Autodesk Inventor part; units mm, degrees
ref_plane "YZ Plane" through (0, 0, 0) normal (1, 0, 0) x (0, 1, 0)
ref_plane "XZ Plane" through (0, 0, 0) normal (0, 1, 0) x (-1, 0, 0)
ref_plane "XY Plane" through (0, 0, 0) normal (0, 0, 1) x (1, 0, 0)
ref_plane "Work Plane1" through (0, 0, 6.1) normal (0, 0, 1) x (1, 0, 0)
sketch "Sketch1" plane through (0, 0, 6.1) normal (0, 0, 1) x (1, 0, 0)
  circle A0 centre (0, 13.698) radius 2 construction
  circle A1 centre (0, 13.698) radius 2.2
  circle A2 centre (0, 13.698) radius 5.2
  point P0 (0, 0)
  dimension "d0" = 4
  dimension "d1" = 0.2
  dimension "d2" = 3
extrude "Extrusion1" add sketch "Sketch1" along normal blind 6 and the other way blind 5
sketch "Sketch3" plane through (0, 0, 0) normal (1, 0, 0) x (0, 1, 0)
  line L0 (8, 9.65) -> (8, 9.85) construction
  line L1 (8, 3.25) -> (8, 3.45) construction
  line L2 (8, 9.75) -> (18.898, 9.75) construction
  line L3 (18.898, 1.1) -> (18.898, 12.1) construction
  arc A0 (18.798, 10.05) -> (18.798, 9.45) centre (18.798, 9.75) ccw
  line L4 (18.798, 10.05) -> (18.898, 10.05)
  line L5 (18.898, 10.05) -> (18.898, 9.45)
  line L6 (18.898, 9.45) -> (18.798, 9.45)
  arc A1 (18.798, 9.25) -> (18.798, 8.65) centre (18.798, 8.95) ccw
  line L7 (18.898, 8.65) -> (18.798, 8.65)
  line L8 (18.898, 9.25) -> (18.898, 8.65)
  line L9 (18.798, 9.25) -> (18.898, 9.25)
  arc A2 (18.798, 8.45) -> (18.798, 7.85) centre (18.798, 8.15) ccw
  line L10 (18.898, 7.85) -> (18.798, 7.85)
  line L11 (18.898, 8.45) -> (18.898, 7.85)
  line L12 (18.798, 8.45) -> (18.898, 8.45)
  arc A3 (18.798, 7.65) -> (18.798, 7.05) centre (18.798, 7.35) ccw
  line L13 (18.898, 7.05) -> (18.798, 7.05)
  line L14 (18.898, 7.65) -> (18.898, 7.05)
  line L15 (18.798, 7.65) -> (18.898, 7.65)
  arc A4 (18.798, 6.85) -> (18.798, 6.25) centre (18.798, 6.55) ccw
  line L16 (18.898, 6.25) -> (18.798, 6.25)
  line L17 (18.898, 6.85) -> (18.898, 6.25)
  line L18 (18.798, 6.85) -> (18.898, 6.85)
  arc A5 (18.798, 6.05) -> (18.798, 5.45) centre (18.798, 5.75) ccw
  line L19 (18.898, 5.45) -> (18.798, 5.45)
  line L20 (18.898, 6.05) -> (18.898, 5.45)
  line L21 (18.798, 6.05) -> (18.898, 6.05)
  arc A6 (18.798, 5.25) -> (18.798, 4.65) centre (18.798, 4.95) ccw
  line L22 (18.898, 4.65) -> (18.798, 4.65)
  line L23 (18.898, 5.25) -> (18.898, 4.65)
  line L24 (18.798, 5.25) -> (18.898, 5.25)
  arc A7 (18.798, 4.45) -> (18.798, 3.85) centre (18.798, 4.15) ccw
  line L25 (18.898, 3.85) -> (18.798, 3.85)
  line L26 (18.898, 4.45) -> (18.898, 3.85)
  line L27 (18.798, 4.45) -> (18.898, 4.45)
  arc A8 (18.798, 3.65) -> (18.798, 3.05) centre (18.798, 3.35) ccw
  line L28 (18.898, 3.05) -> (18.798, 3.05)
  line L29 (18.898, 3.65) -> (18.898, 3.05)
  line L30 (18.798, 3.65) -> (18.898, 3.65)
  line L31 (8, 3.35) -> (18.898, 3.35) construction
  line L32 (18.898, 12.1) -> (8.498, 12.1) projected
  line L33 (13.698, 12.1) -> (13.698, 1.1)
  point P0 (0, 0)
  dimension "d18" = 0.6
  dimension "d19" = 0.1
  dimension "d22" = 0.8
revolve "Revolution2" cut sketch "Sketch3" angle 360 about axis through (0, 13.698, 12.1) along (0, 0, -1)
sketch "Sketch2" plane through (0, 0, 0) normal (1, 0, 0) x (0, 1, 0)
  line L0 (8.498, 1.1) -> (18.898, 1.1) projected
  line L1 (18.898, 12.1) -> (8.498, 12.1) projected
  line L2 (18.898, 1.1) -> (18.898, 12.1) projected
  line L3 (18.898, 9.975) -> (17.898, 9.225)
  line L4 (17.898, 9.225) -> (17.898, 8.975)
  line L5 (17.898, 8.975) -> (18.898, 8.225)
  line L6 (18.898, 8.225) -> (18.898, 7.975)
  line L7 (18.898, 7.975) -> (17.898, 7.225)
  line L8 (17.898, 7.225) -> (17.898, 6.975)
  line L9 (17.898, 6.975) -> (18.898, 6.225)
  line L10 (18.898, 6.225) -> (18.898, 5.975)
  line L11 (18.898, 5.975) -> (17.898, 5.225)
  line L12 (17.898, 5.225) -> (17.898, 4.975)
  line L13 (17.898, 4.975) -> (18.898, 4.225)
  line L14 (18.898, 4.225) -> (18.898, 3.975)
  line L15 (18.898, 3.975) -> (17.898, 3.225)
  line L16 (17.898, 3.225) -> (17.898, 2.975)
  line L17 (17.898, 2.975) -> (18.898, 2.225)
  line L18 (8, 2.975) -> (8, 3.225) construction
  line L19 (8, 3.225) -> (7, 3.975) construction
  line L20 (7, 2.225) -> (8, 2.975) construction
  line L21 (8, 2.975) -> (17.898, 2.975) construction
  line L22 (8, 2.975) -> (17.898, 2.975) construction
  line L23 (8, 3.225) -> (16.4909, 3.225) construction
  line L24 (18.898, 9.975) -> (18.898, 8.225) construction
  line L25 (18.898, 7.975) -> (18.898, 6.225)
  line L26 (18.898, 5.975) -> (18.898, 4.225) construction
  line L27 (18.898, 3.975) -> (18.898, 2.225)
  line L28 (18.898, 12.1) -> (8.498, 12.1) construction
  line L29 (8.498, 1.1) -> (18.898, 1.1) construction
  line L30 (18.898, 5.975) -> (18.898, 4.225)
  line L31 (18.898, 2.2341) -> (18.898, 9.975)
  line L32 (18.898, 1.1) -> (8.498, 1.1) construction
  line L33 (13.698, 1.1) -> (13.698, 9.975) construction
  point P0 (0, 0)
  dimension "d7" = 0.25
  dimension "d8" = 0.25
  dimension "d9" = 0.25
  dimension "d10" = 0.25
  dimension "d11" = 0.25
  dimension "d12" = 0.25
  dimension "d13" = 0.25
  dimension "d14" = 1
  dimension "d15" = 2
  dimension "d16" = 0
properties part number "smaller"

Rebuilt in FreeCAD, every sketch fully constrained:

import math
import FreeCAD as App
import Part
import Sketcher

doc = App.newDocument("Part")
body = doc.addObject("PartDesign::Body", "Body")

# Sketch on XY plane
sketch1 = body.newObject("Sketcher::SketchObject", "Sketch")
sketch1.AttachmentSupport = (doc.getObject("XY_Plane"), [""])
sketch1.MapMode = "FlatFace"
sketch1.AttachmentOffset = App.Placement(App.Vector(0, 0, 6.1), App.Rotation())
sketch1.addGeometry(Part.Circle(App.Vector(0, 13.698, 0), App.Vector(0, 0, 1), 5.2), False)
sketch1.addGeometry(Part.Circle(App.Vector(0, 13.698, 0), App.Vector(0, 0, 1), 2.2), False)
sketch1.addConstraint(Sketcher.Constraint("Coincident", 1, 3, 0, 3))
sketch1.addConstraint(Sketcher.Constraint("PointOnObject", 0, 3, -2))
sketch1.addConstraint(Sketcher.Constraint("Diameter", 0, 10.4))
sketch1.addConstraint(Sketcher.Constraint("Diameter", 1, 4.4))
sketch1.addConstraint(Sketcher.Constraint("DistanceY", -1, 1, 0, 3, 13.698))
pad1 = body.newObject("PartDesign::Pad", "Pad")
pad1.Profile = sketch1
pad1.Type = "TwoLengths"
pad1.Length = 6
pad1.Length2 = 5

# Sketch on YZ plane
sketch2 = body.newObject("Sketcher::SketchObject", "Sketch001")
sketch2.AttachmentSupport = (doc.getObject("YZ_Plane"), [""])
sketch2.MapMode = "FlatFace"
sketch2.addGeometry(Part.LineSegment(App.Vector(18.898, 10.05, 0), App.Vector(18.798, 10.05, 0)), False)
sketch2.addGeometry(Part.ArcOfCircle(Part.Circle(App.Vector(18.798, 9.75, 0), App.Vector(0, 0, 1), 0.3), math.radians(90), math.radians(270)), False)
sketch2.addGeometry(Part.LineSegment(App.Vector(18.798, 9.45, 0), App.Vector(18.898, 9.45, 0)), False)
sketch2.addGeometry(Part.LineSegment(App.Vector(18.898, 9.45, 0), App.Vector(18.898, 10.05, 0)), False)
sketch2.addGeometry(Part.LineSegment(App.Vector(18.898, 9.25, 0), App.Vector(18.798, 9.25, 0)), False)
sketch2.addGeometry(Part.ArcOfCircle(Part.Circle(App.Vector(18.798, 8.95, 0), App.Vector(0, 0, 1), 0.3), math.radians(90), math.radians(270)), False)
sketch2.addGeometry(Part.LineSegment(App.Vector(18.798, 8.65, 0), App.Vector(18.898, 8.65, 0)), False)
sketch2.addGeometry(Part.LineSegment(App.Vector(18.898, 8.65, 0), App.Vector(18.898, 9.25, 0)), False)
sketch2.addGeometry(Part.LineSegment(App.Vector(18.898, 8.45, 0), App.Vector(18.798, 8.45, 0)), False)
sketch2.addGeometry(Part.ArcOfCircle(Part.Circle(App.Vector(18.798, 8.15, 0), App.Vector(0, 0, 1), 0.3), math.radians(90), math.radians(270)), False)
sketch2.addGeometry(Part.LineSegment(App.Vector(18.798, 7.85, 0), App.Vector(18.898, 7.85, 0)), False)
sketch2.addGeometry(Part.LineSegment(App.Vector(18.898, 7.85, 0), App.Vector(18.898, 8.45, 0)), False)
sketch2.addGeometry(Part.LineSegment(App.Vector(18.898, 7.65, 0), App.Vector(18.798, 7.65, 0)), False)
sketch2.addGeometry(Part.ArcOfCircle(Part.Circle(App.Vector(18.798, 7.35, 0), App.Vector(0, 0, 1), 0.3), math.radians(90), math.radians(270)), False)
sketch2.addGeometry(Part.LineSegment(App.Vector(18.798, 7.05, 0), App.Vector(18.898, 7.05, 0)), False)
sketch2.addGeometry(Part.LineSegment(App.Vector(18.898, 7.05, 0), App.Vector(18.898, 7.65, 0)), False)
sketch2.addGeometry(Part.LineSegment(App.Vector(18.898, 6.85, 0), App.Vector(18.798, 6.85, 0)), False)
sketch2.addGeometry(Part.ArcOfCircle(Part.Circle(App.Vector(18.798, 6.55, 0), App.Vector(0, 0, 1), 0.3), math.radians(90), math.radians(270)), False)
sketch2.addGeometry(Part.LineSegment(App.Vector(18.798, 6.25, 0), App.Vector(18.898, 6.25, 0)), False)
sketch2.addGeometry(Part.LineSegment(App.Vector(18.898, 6.25, 0), App.Vector(18.898, 6.85, 0)), False)
sketch2.addGeometry(Part.LineSegment(App.Vector(18.898, 6.05, 0), App.Vector(18.798, 6.05, 0)), False)
sketch2.addGeometry(Part.ArcOfCircle(Part.Circle(App.Vector(18.798, 5.75, 0), App.Vector(0, 0, 1), 0.3), math.radians(90), math.radians(270)), False)
sketch2.addGeometry(Part.LineSegment(App.Vector(18.798, 5.45, 0), App.Vector(18.898, 5.45, 0)), False)
sketch2.addGeometry(Part.LineSegment(App.Vector(18.898, 5.45, 0), App.Vector(18.898, 6.05, 0)), False)
sketch2.addGeometry(Part.LineSegment(App.Vector(18.898, 5.25, 0), App.Vector(18.798, 5.25, 0)), False)
sketch2.addGeometry(Part.ArcOfCircle(Part.Circle(App.Vector(18.798, 4.95, 0), App.Vector(0, 0, 1), 0.3), math.radians(90), math.radians(270)), False)
sketch2.addGeometry(Part.LineSegment(App.Vector(18.798, 4.65, 0), App.Vector(18.898, 4.65, 0)), False)
sketch2.addGeometry(Part.LineSegment(App.Vector(18.898, 4.65, 0), App.Vector(18.898, 5.25, 0)), False)
sketch2.addGeometry(Part.LineSegment(App.Vector(18.898, 4.45, 0), App.Vector(18.798, 4.45, 0)), False)
sketch2.addGeometry(Part.ArcOfCircle(Part.Circle(App.Vector(18.798, 4.15, 0), App.Vector(0, 0, 1), 0.3), math.radians(90), math.radians(270)), False)
sketch2.addGeometry(Part.LineSegment(App.Vector(18.798, 3.85, 0), App.Vector(18.898, 3.85, 0)), False)
sketch2.addGeometry(Part.LineSegment(App.Vector(18.898, 3.85, 0), App.Vector(18.898, 4.45, 0)), False)
sketch2.addGeometry(Part.LineSegment(App.Vector(18.898, 3.65, 0), App.Vector(18.798, 3.65, 0)), False)
sketch2.addGeometry(Part.ArcOfCircle(Part.Circle(App.Vector(18.798, 3.35, 0), App.Vector(0, 0, 1), 0.3), math.radians(90), math.radians(270)), False)
sketch2.addGeometry(Part.LineSegment(App.Vector(18.798, 3.05, 0), App.Vector(18.898, 3.05, 0)), False)
sketch2.addGeometry(Part.LineSegment(App.Vector(18.898, 3.05, 0), App.Vector(18.898, 3.65, 0)), False)
sketch2.addGeometry(Part.LineSegment(App.Vector(13.698, 10.05, 0), App.Vector(13.698, 3.05, 0)), True)  # axis
sketch2.addConstraint(Sketcher.Constraint("Tangent", 0, 2, 1, 1))
sketch2.addConstraint(Sketcher.Constraint("Tangent", 1, 2, 2, 1))
sketch2.addConstraint(Sketcher.Constraint("Coincident", 2, 2, 3, 1))
sketch2.addConstraint(Sketcher.Constraint("Coincident", 3, 2, 0, 1))
sketch2.addConstraint(Sketcher.Constraint("Tangent", 4, 2, 5, 1))
sketch2.addConstraint(Sketcher.Constraint("Tangent", 5, 2, 6, 1))
sketch2.addConstraint(Sketcher.Constraint("Coincident", 6, 2, 7, 1))
sketch2.addConstraint(Sketcher.Constraint("Coincident", 7, 2, 4, 1))
sketch2.addConstraint(Sketcher.Constraint("Tangent", 8, 2, 9, 1))
sketch2.addConstraint(Sketcher.Constraint("Tangent", 9, 2, 10, 1))
sketch2.addConstraint(Sketcher.Constraint("Coincident", 10, 2, 11, 1))
sketch2.addConstraint(Sketcher.Constraint("Coincident", 11, 2, 8, 1))
sketch2.addConstraint(Sketcher.Constraint("Tangent", 12, 2, 13, 1))
sketch2.addConstraint(Sketcher.Constraint("Tangent", 13, 2, 14, 1))
sketch2.addConstraint(Sketcher.Constraint("Coincident", 14, 2, 15, 1))
sketch2.addConstraint(Sketcher.Constraint("Coincident", 15, 2, 12, 1))
sketch2.addConstraint(Sketcher.Constraint("Tangent", 16, 2, 17, 1))
sketch2.addConstraint(Sketcher.Constraint("Tangent", 17, 2, 18, 1))
sketch2.addConstraint(Sketcher.Constraint("Coincident", 18, 2, 19, 1))
sketch2.addConstraint(Sketcher.Constraint("Coincident", 19, 2, 16, 1))
sketch2.addConstraint(Sketcher.Constraint("Tangent", 20, 2, 21, 1))
sketch2.addConstraint(Sketcher.Constraint("Tangent", 21, 2, 22, 1))
sketch2.addConstraint(Sketcher.Constraint("Coincident", 22, 2, 23, 1))
sketch2.addConstraint(Sketcher.Constraint("Coincident", 23, 2, 20, 1))
sketch2.addConstraint(Sketcher.Constraint("Tangent", 24, 2, 25, 1))
sketch2.addConstraint(Sketcher.Constraint("Tangent", 25, 2, 26, 1))
sketch2.addConstraint(Sketcher.Constraint("Coincident", 26, 2, 27, 1))
sketch2.addConstraint(Sketcher.Constraint("Coincident", 27, 2, 24, 1))
sketch2.addConstraint(Sketcher.Constraint("Tangent", 28, 2, 29, 1))
sketch2.addConstraint(Sketcher.Constraint("Tangent", 29, 2, 30, 1))
sketch2.addConstraint(Sketcher.Constraint("Coincident", 30, 2, 31, 1))
sketch2.addConstraint(Sketcher.Constraint("Coincident", 31, 2, 28, 1))
sketch2.addConstraint(Sketcher.Constraint("Tangent", 32, 2, 33, 1))
sketch2.addConstraint(Sketcher.Constraint("Tangent", 33, 2, 34, 1))
sketch2.addConstraint(Sketcher.Constraint("Coincident", 34, 2, 35, 1))
sketch2.addConstraint(Sketcher.Constraint("Coincident", 35, 2, 32, 1))
sketch2.addConstraint(Sketcher.Constraint("Horizontal", 0))
sketch2.addConstraint(Sketcher.Constraint("Horizontal", 2))
sketch2.addConstraint(Sketcher.Constraint("Vertical", 3))
sketch2.addConstraint(Sketcher.Constraint("Horizontal", 4))
sketch2.addConstraint(Sketcher.Constraint("Horizontal", 6))
sketch2.addConstraint(Sketcher.Constraint("Vertical", 7))
sketch2.addConstraint(Sketcher.Constraint("Horizontal", 8))
sketch2.addConstraint(Sketcher.Constraint("Horizontal", 10))
sketch2.addConstraint(Sketcher.Constraint("Vertical", 11))
sketch2.addConstraint(Sketcher.Constraint("Horizontal", 12))
sketch2.addConstraint(Sketcher.Constraint("Horizontal", 14))
sketch2.addConstraint(Sketcher.Constraint("Vertical", 15))
sketch2.addConstraint(Sketcher.Constraint("Horizontal", 16))
sketch2.addConstraint(Sketcher.Constraint("Horizontal", 18))
sketch2.addConstraint(Sketcher.Constraint("Vertical", 19))
sketch2.addConstraint(Sketcher.Constraint("Horizontal", 20))
sketch2.addConstraint(Sketcher.Constraint("Horizontal", 22))
sketch2.addConstraint(Sketcher.Constraint("Vertical", 23))
sketch2.addConstraint(Sketcher.Constraint("Horizontal", 24))
sketch2.addConstraint(Sketcher.Constraint("Horizontal", 26))
sketch2.addConstraint(Sketcher.Constraint("Vertical", 27))
sketch2.addConstraint(Sketcher.Constraint("Horizontal", 28))
sketch2.addConstraint(Sketcher.Constraint("Horizontal", 30))
sketch2.addConstraint(Sketcher.Constraint("Vertical", 31))
sketch2.addConstraint(Sketcher.Constraint("Horizontal", 32))
sketch2.addConstraint(Sketcher.Constraint("Horizontal", 34))
sketch2.addConstraint(Sketcher.Constraint("Vertical", 35))
sketch2.addConstraint(Sketcher.Constraint("Vertical", 36))
sketch2.addConstraint(Sketcher.Constraint("Equal", 1, 5))
sketch2.addConstraint(Sketcher.Constraint("Equal", 5, 9))
sketch2.addConstraint(Sketcher.Constraint("Equal", 9, 13))
sketch2.addConstraint(Sketcher.Constraint("Equal", 13, 17))
sketch2.addConstraint(Sketcher.Constraint("Equal", 17, 21))
sketch2.addConstraint(Sketcher.Constraint("Equal", 21, 25))
sketch2.addConstraint(Sketcher.Constraint("Equal", 25, 29))
sketch2.addConstraint(Sketcher.Constraint("Equal", 29, 33))
sketch2.addConstraint(Sketcher.Constraint("Horizontal", 3, 2, 36, 1))
sketch2.addConstraint(Sketcher.Constraint("Horizontal", 34, 2, 36, 2))
sketch2.addConstraint(Sketcher.Constraint("Vertical", 1, 3, 5, 3))
sketch2.addConstraint(Sketcher.Constraint("Vertical", 5, 3, 9, 3))
sketch2.addConstraint(Sketcher.Constraint("Vertical", 9, 3, 13, 3))
sketch2.addConstraint(Sketcher.Constraint("Vertical", 13, 3, 17, 3))
sketch2.addConstraint(Sketcher.Constraint("Vertical", 17, 3, 21, 3))
sketch2.addConstraint(Sketcher.Constraint("Vertical", 21, 3, 25, 3))
sketch2.addConstraint(Sketcher.Constraint("Vertical", 25, 3, 29, 3))
sketch2.addConstraint(Sketcher.Constraint("Vertical", 29, 3, 33, 3))
sketch2.addConstraint(Sketcher.Constraint("Vertical", 3, 2, 6, 2))
sketch2.addConstraint(Sketcher.Constraint("Vertical", 7, 2, 10, 2))
sketch2.addConstraint(Sketcher.Constraint("Vertical", 11, 2, 14, 2))
sketch2.addConstraint(Sketcher.Constraint("Vertical", 15, 2, 18, 2))
sketch2.addConstraint(Sketcher.Constraint("Vertical", 19, 2, 22, 2))
sketch2.addConstraint(Sketcher.Constraint("Vertical", 23, 2, 26, 2))
sketch2.addConstraint(Sketcher.Constraint("Vertical", 27, 2, 30, 2))
sketch2.addConstraint(Sketcher.Constraint("Vertical", 31, 2, 34, 2))
sketch2.addConstraint(Sketcher.Constraint("Radius", 1, 0.3))
sketch2.addConstraint(Sketcher.Constraint("DistanceX", 0, 2, 0, 1, 0.1))
sketch2.addConstraint(Sketcher.Constraint("DistanceY", 5, 3, 1, 3, 0.8))
sketch2.addConstraint(Sketcher.Constraint("DistanceY", 9, 3, 5, 3, 0.8))
sketch2.addConstraint(Sketcher.Constraint("DistanceY", 13, 3, 9, 3, 0.8))
sketch2.addConstraint(Sketcher.Constraint("DistanceY", 17, 3, 13, 3, 0.8))
sketch2.addConstraint(Sketcher.Constraint("DistanceY", 21, 3, 17, 3, 0.8))
sketch2.addConstraint(Sketcher.Constraint("DistanceY", 25, 3, 21, 3, 0.8))
sketch2.addConstraint(Sketcher.Constraint("DistanceY", 29, 3, 25, 3, 0.8))
sketch2.addConstraint(Sketcher.Constraint("DistanceY", 33, 3, 29, 3, 0.8))
sketch2.addConstraint(Sketcher.Constraint("DistanceX", 36, 1, 0, 2, 5.1))
sketch2.addConstraint(Sketcher.Constraint("DistanceY", -1, 1, 1, 3, 9.75))
sketch2.addConstraint(Sketcher.Constraint("DistanceX", -1, 1, 1, 3, 18.798))
groove = body.newObject("PartDesign::Groove", "Groove")
groove.Profile = sketch2
groove.ReferenceAxis = (sketch2, ["Axis0"])
groove.Angle = 360

doc.recompute()
